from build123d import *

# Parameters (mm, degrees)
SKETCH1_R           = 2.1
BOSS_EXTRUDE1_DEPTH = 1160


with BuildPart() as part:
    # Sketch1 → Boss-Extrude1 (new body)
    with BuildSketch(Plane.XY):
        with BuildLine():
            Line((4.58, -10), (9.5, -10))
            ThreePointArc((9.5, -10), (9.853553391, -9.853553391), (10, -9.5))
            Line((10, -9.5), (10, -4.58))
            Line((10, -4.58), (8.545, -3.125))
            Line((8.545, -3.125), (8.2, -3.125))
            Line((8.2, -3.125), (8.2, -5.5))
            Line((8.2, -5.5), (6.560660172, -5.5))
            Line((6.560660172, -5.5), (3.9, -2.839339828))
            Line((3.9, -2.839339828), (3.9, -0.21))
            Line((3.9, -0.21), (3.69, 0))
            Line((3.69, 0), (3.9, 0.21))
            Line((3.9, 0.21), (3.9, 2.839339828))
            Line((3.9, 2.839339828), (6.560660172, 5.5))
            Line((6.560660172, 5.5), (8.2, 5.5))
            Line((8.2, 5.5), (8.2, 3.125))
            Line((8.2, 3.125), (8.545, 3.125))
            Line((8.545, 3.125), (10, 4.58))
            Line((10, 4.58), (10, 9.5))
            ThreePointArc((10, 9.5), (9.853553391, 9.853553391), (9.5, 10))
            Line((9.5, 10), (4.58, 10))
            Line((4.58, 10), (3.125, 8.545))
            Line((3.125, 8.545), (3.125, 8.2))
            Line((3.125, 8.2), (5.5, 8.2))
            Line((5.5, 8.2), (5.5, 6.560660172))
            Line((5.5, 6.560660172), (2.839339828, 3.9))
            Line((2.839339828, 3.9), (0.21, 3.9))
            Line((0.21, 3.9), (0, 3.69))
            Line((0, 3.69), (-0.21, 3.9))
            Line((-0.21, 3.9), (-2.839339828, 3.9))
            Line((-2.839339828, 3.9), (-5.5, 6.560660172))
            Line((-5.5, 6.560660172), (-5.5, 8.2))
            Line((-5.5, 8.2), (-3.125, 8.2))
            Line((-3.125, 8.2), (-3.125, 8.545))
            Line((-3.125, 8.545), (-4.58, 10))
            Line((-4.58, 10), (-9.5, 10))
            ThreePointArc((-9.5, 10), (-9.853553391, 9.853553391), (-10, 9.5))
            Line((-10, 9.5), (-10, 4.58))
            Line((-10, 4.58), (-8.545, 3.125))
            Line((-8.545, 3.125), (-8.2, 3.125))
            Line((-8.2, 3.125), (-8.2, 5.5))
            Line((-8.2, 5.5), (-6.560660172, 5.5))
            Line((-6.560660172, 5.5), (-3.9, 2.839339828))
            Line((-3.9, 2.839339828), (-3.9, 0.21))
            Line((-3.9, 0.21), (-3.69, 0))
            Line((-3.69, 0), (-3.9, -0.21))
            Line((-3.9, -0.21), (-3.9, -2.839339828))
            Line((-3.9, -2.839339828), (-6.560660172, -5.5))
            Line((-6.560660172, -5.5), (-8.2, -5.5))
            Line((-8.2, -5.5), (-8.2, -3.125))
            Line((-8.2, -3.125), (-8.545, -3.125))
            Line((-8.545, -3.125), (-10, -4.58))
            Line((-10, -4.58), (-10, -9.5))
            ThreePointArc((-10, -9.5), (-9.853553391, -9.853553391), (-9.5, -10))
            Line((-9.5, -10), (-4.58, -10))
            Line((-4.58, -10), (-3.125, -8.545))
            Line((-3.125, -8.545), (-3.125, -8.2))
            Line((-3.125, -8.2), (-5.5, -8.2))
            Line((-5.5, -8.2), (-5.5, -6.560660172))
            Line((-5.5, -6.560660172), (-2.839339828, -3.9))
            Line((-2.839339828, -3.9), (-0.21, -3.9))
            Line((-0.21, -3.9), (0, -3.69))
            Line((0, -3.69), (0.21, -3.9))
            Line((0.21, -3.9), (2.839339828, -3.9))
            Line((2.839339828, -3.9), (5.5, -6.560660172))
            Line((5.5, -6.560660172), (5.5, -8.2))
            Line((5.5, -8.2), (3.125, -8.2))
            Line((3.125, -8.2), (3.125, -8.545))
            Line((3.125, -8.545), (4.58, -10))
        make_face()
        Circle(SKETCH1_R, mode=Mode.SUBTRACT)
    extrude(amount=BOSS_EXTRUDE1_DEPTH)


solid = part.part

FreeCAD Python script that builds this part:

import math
import FreeCAD as App
import Part
import Sketcher

doc = App.newDocument("Part")
body = doc.addObject("PartDesign::Body", "Body")

# Sketch on XY plane
sketch1 = body.newObject("Sketcher::SketchObject", "Sketch")
sketch1.AttachmentSupport = (doc.getObject("XY_Plane"), [""])
sketch1.MapMode = "FlatFace"
sketch1.addGeometry(Part.LineSegment(App.Vector(4.58, -10, 0), App.Vector(9.5, -10, 0)), False)
sketch1.addGeometry(Part.ArcOfCircle(Part.Circle(App.Vector(9.5, -9.5, 0), App.Vector(0, 0, 1), 0.5), math.radians(-90), math.radians(0)), False)
sketch1.addGeometry(Part.LineSegment(App.Vector(10, -9.5, 0), App.Vector(10, -4.58, 0)), False)
sketch1.addGeometry(Part.LineSegment(App.Vector(10, -4.58, 0), App.Vector(8.545, -3.125, 0)), False)
sketch1.addGeometry(Part.LineSegment(App.Vector(8.545, -3.125, 0), App.Vector(8.2, -3.125, 0)), False)
sketch1.addGeometry(Part.LineSegment(App.Vector(8.2, -3.125, 0), App.Vector(8.2, -5.5, 0)), False)
sketch1.addGeometry(Part.LineSegment(App.Vector(8.2, -5.5, 0), App.Vector(6.56066, -5.5, 0)), False)
sketch1.addGeometry(Part.LineSegment(App.Vector(6.56066, -5.5, 0), App.Vector(3.9, -2.83934, 0)), False)
sketch1.addGeometry(Part.LineSegment(App.Vector(3.9, -2.83934, 0), App.Vector(3.9, -0.21, 0)), False)
sketch1.addGeometry(Part.LineSegment(App.Vector(3.9, -0.21, 0), App.Vector(3.69, 0, 0)), False)
sketch1.addGeometry(Part.LineSegment(App.Vector(3.69, 0, 0), App.Vector(3.9, 0.21, 0)), False)
sketch1.addGeometry(Part.LineSegment(App.Vector(3.9, 0.21, 0), App.Vector(3.9, 2.83934, 0)), False)
sketch1.addGeometry(Part.LineSegment(App.Vector(3.9, 2.83934, 0), App.Vector(6.56066, 5.5, 0)), False)
sketch1.addGeometry(Part.LineSegment(App.Vector(6.56066, 5.5, 0), App.Vector(8.2, 5.5, 0)), False)
sketch1.addGeometry(Part.LineSegment(App.Vector(8.2, 5.5, 0), App.Vector(8.2, 3.125, 0)), False)
sketch1.addGeometry(Part.LineSegment(App.Vector(8.2, 3.125, 0), App.Vector(8.545, 3.125, 0)), False)
sketch1.addGeometry(Part.LineSegment(App.Vector(8.545, 3.125, 0), App.Vector(10, 4.58, 0)), False)
sketch1.addGeometry(Part.LineSegment(App.Vector(10, 4.58, 0), App.Vector(10, 9.5, 0)), False)
sketch1.addGeometry(Part.ArcOfCircle(Part.Circle(App.Vector(9.5, 9.5, 0), App.Vector(0, 0, 1), 0.5), math.radians(0), math.radians(90)), False)
sketch1.addGeometry(Part.LineSegment(App.Vector(9.5, 10, 0), App.Vector(4.58, 10, 0)), False)
sketch1.addGeometry(Part.LineSegment(App.Vector(4.58, 10, 0), App.Vector(3.125, 8.545, 0)), False)
sketch1.addGeometry(Part.LineSegment(App.Vector(3.125, 8.545, 0), App.Vector(3.125, 8.2, 0)), False)
sketch1.addGeometry(Part.LineSegment(App.Vector(3.125, 8.2, 0), App.Vector(5.5, 8.2, 0)), False)
sketch1.addGeometry(Part.LineSegment(App.Vector(5.5, 8.2, 0), App.Vector(5.5, 6.56066, 0)), False)
sketch1.addGeometry(Part.LineSegment(App.Vector(5.5, 6.56066, 0), App.Vector(2.83934, 3.9, 0)), False)
sketch1.addGeometry(Part.LineSegment(App.Vector(2.83934, 3.9, 0), App.Vector(0.21, 3.9, 0)), False)
sketch1.addGeometry(Part.LineSegment(App.Vector(0.21, 3.9, 0), App.Vector(0, 3.69, 0)), False)
sketch1.addGeometry(Part.LineSegment(App.Vector(0, 3.69, 0), App.Vector(-0.21, 3.9, 0)), False)
sketch1.addGeometry(Part.LineSegment(App.Vector(-0.21, 3.9, 0), App.Vector(-2.83934, 3.9, 0)), False)
sketch1.addGeometry(Part.LineSegment(App.Vector(-2.83934, 3.9, 0), App.Vector(-5.5, 6.56066, 0)), False)
sketch1.addGeometry(Part.LineSegment(App.Vector(-5.5, 6.56066, 0), App.Vector(-5.5, 8.2, 0)), False)
sketch1.addGeometry(Part.LineSegment(App.Vector(-5.5, 8.2, 0), App.Vector(-3.125, 8.2, 0)), False)
sketch1.addGeometry(Part.LineSegment(App.Vector(-3.125, 8.2, 0), App.Vector(-3.125, 8.545, 0)), False)
sketch1.addGeometry(Part.LineSegment(App.Vector(-3.125, 8.545, 0), App.Vector(-4.58, 10, 0)), False)
sketch1.addGeometry(Part.LineSegment(App.Vector(-4.58, 10, 0), App.Vector(-9.5, 10, 0)), False)
sketch1.addGeometry(Part.ArcOfCircle(Part.Circle(App.Vector(-9.5, 9.5, 0), App.Vector(0, 0, 1), 0.5), math.radians(90), math.radians(180)), False)
sketch1.addGeometry(Part.LineSegment(App.Vector(-10, 9.5, 0), App.Vector(-10, 4.58, 0)), False)
sketch1.addGeometry(Part.LineSegment(App.Vector(-10, 4.58, 0), App.Vector(-8.545, 3.125, 0)), False)
sketch1.addGeometry(Part.LineSegment(App.Vector(-8.545, 3.125, 0), App.Vector(-8.2, 3.125, 0)), False)
sketch1.addGeometry(Part.LineSegment(App.Vector(-8.2, 3.125, 0), App.Vector(-8.2, 5.5, 0)), False)
sketch1.addGeometry(Part.LineSegment(App.Vector(-8.2, 5.5, 0), App.Vector(-6.56066, 5.5, 0)), False)
sketch1.addGeometry(Part.LineSegment(App.Vector(-6.56066, 5.5, 0), App.Vector(-3.9, 2.83934, 0)), False)
sketch1.addGeometry(Part.LineSegment(App.Vector(-3.9, 2.83934, 0), App.Vector(-3.9, 0.21, 0)), False)
sketch1.addGeometry(Part.LineSegment(App.Vector(-3.9, 0.21, 0), App.Vector(-3.69, 0, 0)), False)
sketch1.addGeometry(Part.LineSegment(App.Vector(-3.69, 0, 0), App.Vector(-3.9, -0.21, 0)), False)
sketch1.addGeometry(Part.LineSegment(App.Vector(-3.9, -0.21, 0), App.Vector(-3.9, -2.83934, 0)), False)
sketch1.addGeometry(Part.LineSegment(App.Vector(-3.9, -2.83934, 0), App.Vector(-6.56066, -5.5, 0)), False)
sketch1.addGeometry(Part.LineSegment(App.Vector(-6.56066, -5.5, 0), App.Vector(-8.2, -5.5, 0)), False)
sketch1.addGeometry(Part.LineSegment(App.Vector(-8.2, -5.5, 0), App.Vector(-8.2, -3.125, 0)), False)
sketch1.addGeometry(Part.LineSegment(App.Vector(-8.2, -3.125, 0), App.Vector(-8.545, -3.125, 0)), False)
sketch1.addGeometry(Part.LineSegment(App.Vector(-8.545, -3.125, 0), App.Vector(-10, -4.58, 0)), False)
sketch1.addGeometry(Part.LineSegment(App.Vector(-10, -4.58, 0), App.Vector(-10, -9.5, 0)), False)
sketch1.addGeometry(Part.ArcOfCircle(Part.Circle(App.Vector(-9.5, -9.5, 0), App.Vector(0, 0, 1), 0.5), math.radians(180), math.radians(270)), False)
sketch1.addGeometry(Part.LineSegment(App.Vector(-9.5, -10, 0), App.Vector(-4.58, -10, 0)), False)
sketch1.addGeometry(Part.LineSegment(App.Vector(-4.58, -10, 0), App.Vector(-3.125, -8.545, 0)), False)
sketch1.addGeometry(Part.LineSegment(App.Vector(-3.125, -8.545, 0), App.Vector(-3.125, -8.2, 0)), False)
sketch1.addGeometry(Part.LineSegment(App.Vector(-3.125, -8.2, 0), App.Vector(-5.5, -8.2, 0)), False)
sketch1.addGeometry(Part.LineSegment(App.Vector(-5.5, -8.2, 0), App.Vector(-5.5, -6.56066, 0)), False)
sketch1.addGeometry(Part.LineSegment(App.Vector(-5.5, -6.56066, 0), App.Vector(-2.83934, -3.9, 0)), False)
sketch1.addGeometry(Part.LineSegment(App.Vector(-2.83934, -3.9, 0), App.Vector(-0.21, -3.9, 0)), False)
sketch1.addGeometry(Part.LineSegment(App.Vector(-0.21, -3.9, 0), App.Vector(0, -3.69, 0)), False)
sketch1.addGeometry(Part.LineSegment(App.Vector(0, -3.69, 0), App.Vector(0.21, -3.9, 0)), False)
sketch1.addGeometry(Part.LineSegment(App.Vector(0.21, -3.9, 0), App.Vector(2.83934, -3.9, 0)), False)
sketch1.addGeometry(Part.LineSegment(App.Vector(2.83934, -3.9, 0), App.Vector(5.5, -6.56066, 0)), False)
sketch1.addGeometry(Part.LineSegment(App.Vector(5.5, -6.56066, 0), App.Vector(5.5, -8.2, 0)), False)
sketch1.addGeometry(Part.LineSegment(App.Vector(5.5, -8.2, 0), App.Vector(3.125, -8.2, 0)), False)
sketch1.addGeometry(Part.LineSegment(App.Vector(3.125, -8.2, 0), App.Vector(3.125, -8.545, 0)), False)
sketch1.addGeometry(Part.LineSegment(App.Vector(3.125, -8.545, 0), App.Vector(4.58, -10, 0)), False)
sketch1.addGeometry(Part.Circle(App.Vector(0, 0, 0), App.Vector(0, 0, 1), 2.1), False)
sketch1.addConstraint(Sketcher.Constraint("Tangent", 0, 2, 1, 1))
sketch1.addConstraint(Sketcher.Constraint("Tangent", 1, 2, 2, 1))
sketch1.addConstraint(Sketcher.Constraint("Coincident", 2, 2, 3, 1))
sketch1.addConstraint(Sketcher.Constraint("Coincident", 3, 2, 4, 1))
sketch1.addConstraint(Sketcher.Constraint("Coincident", 4, 2, 5, 1))
sketch1.addConstraint(Sketcher.Constraint("Coincident", 5, 2, 6, 1))
sketch1.addConstraint(Sketcher.Constraint("Coincident", 6, 2, 7, 1))
sketch1.addConstraint(Sketcher.Constraint("Coincident", 7, 2, 8, 1))
sketch1.addConstraint(Sketcher.Constraint("Coincident", 8, 2, 9, 1))
sketch1.addConstraint(Sketcher.Constraint("Coincident", 9, 2, 10, 1))
sketch1.addConstraint(Sketcher.Constraint("Coincident", 10, 2, 11, 1))
sketch1.addConstraint(Sketcher.Constraint("Coincident", 11, 2, 12, 1))
sketch1.addConstraint(Sketcher.Constraint("Coincident", 12, 2, 13, 1))
sketch1.addConstraint(Sketcher.Constraint("Coincident", 13, 2, 14, 1))
sketch1.addConstraint(Sketcher.Constraint("Coincident", 14, 2, 15, 1))
sketch1.addConstraint(Sketcher.Constraint("Coincident", 15, 2, 16, 1))
sketch1.addConstraint(Sketcher.Constraint("Coincident", 16, 2, 17, 1))
sketch1.addConstraint(Sketcher.Constraint("Tangent", 17, 2, 18, 1))
sketch1.addConstraint(Sketcher.Constraint("Tangent", 18, 2, 19, 1))
sketch1.addConstraint(Sketcher.Constraint("Coincident", 19, 2, 20, 1))
sketch1.addConstraint(Sketcher.Constraint("Coincident", 20, 2, 21, 1))
sketch1.addConstraint(Sketcher.Constraint("Coincident", 21, 2, 22, 1))
sketch1.addConstraint(Sketcher.Constraint("Coincident", 22, 2, 23, 1))
sketch1.addConstraint(Sketcher.Constraint("Coincident", 23, 2, 24, 1))
sketch1.addConstraint(Sketcher.Constraint("Coincident", 24, 2, 25, 1))
sketch1.addConstraint(Sketcher.Constraint("Coincident", 25, 2, 26, 1))
sketch1.addConstraint(Sketcher.Constraint("Coincident", 26, 2, 27, 1))
sketch1.addConstraint(Sketcher.Constraint("Coincident", 27, 2, 28, 1))
sketch1.addConstraint(Sketcher.Constraint("Coincident", 28, 2, 29, 1))
sketch1.addConstraint(Sketcher.Constraint("Coincident", 29, 2, 30, 1))
sketch1.addConstraint(Sketcher.Constraint("Coincident", 30, 2, 31, 1))
sketch1.addConstraint(Sketcher.Constraint("Coincident", 31, 2, 32, 1))
sketch1.addConstraint(Sketcher.Constraint("Coincident", 32, 2, 33, 1))
sketch1.addConstraint(Sketcher.Constraint("Coincident", 33, 2, 34, 1))
sketch1.addConstraint(Sketcher.Constraint("Tangent", 34, 2, 35, 1))
sketch1.addConstraint(Sketcher.Constraint("Tangent", 35, 2, 36, 1))
sketch1.addConstraint(Sketcher.Constraint("Coincident", 36, 2, 37, 1))
sketch1.addConstraint(Sketcher.Constraint("Coincident", 37, 2, 38, 1))
sketch1.addConstraint(Sketcher.Constraint("Coincident", 38, 2, 39, 1))
sketch1.addConstraint(Sketcher.Constraint("Coincident", 39, 2, 40, 1))
sketch1.addConstraint(Sketcher.Constraint("Coincident", 40, 2, 41, 1))
sketch1.addConstraint(Sketcher.Constraint("Coincident", 41, 2, 42, 1))
sketch1.addConstraint(Sketcher.Constraint("Coincident", 42, 2, 43, 1))
sketch1.addConstraint(Sketcher.Constraint("Coincident", 43, 2, 44, 1))
sketch1.addConstraint(Sketcher.Constraint("Coincident", 44, 2, 45, 1))
sketch1.addConstraint(Sketcher.Constraint("Coincident", 45, 2, 46, 1))
sketch1.addConstraint(Sketcher.Constraint("Coincident", 46, 2, 47, 1))
sketch1.addConstraint(Sketcher.Constraint("Coincident", 47, 2, 48, 1))
sketch1.addConstraint(Sketcher.Constraint("Coincident", 48, 2, 49, 1))
sketch1.addConstraint(Sketcher.Constraint("Coincident", 49, 2, 50, 1))
sketch1.addConstraint(Sketcher.Constraint("Coincident", 50, 2, 51, 1))
sketch1.addConstraint(Sketcher.Constraint("Tangent", 51, 2, 52, 1))
sketch1.addConstraint(Sketcher.Constraint("Tangent", 52, 2, 53, 1))
sketch1.addConstraint(Sketcher.Constraint("Coincident", 53, 2, 54, 1))
sketch1.addConstraint(Sketcher.Constraint("Coincident", 54, 2, 55, 1))
sketch1.addConstraint(Sketcher.Constraint("Coincident", 55, 2, 56, 1))
sketch1.addConstraint(Sketcher.Constraint("Coincident", 56, 2, 57, 1))
sketch1.addConstraint(Sketcher.Constraint("Coincident", 57, 2, 58, 1))
sketch1.addConstraint(Sketcher.Constraint("Coincident", 58, 2, 59, 1))
sketch1.addConstraint(Sketcher.Constraint("Coincident", 59, 2, 60, 1))
sketch1.addConstraint(Sketcher.Constraint("Coincident", 60, 2, 61, 1))
sketch1.addConstraint(Sketcher.Constraint("Coincident", 61, 2, 62, 1))
sketch1.addConstraint(Sketcher.Constraint("Coincident", 62, 2, 63, 1))
sketch1.addConstraint(Sketcher.Constraint("Coincident", 63, 2, 64, 1))
sketch1.addConstraint(Sketcher.Constraint("Coincident", 64, 2, 65, 1))
sketch1.addConstraint(Sketcher.Constraint("Coincident", 65, 2, 66, 1))
sketch1.addConstraint(Sketcher.Constraint("Coincident", 66, 2, 67, 1))
sketch1.addConstraint(Sketcher.Constraint("Coincident", 67, 2, 0, 1))
sketch1.addConstraint(Sketcher.Constraint("Horizontal", 0))
sketch1.addConstraint(Sketcher.Constraint("Vertical", 2))
sketch1.addConstraint(Sketcher.Constraint("Horizontal", 4))
sketch1.addConstraint(Sketcher.Constraint("Vertical", 5))
sketch1.addConstraint(Sketcher.Constraint("Horizontal", 6))
sketch1.addConstraint(Sketcher.Constraint("Vertical", 8))
sketch1.addConstraint(Sketcher.Constraint("Vertical", 11))
sketch1.addConstraint(Sketcher.Constraint("Horizontal", 13))
sketch1.addConstraint(Sketcher.Constraint("Vertical", 14))
sketch1.addConstraint(Sketcher.Constraint("Horizontal", 15))
sketch1.addConstraint(Sketcher.Constraint("Vertical", 17))
sketch1.addConstraint(Sketcher.Constraint("Horizontal", 19))
sketch1.addConstraint(Sketcher.Constraint("Vertical", 21))
sketch1.addConstraint(Sketcher.Constraint("Horizontal", 22))
sketch1.addConstraint(Sketcher.Constraint("Vertical", 23))
sketch1.addConstraint(Sketcher.Constraint("Horizontal", 25))
sketch1.addConstraint(Sketcher.Constraint("Horizontal", 28))
sketch1.addConstraint(Sketcher.Constraint("Vertical", 30))
sketch1.addConstraint(Sketcher.Constraint("Horizontal", 31))
sketch1.addConstraint(Sketcher.Constraint("Vertical", 32))
sketch1.addConstraint(Sketcher.Constraint("Horizontal", 34))
sketch1.addConstraint(Sketcher.Constraint("Vertical", 36))
sketch1.addConstraint(Sketcher.Constraint("Horizontal", 38))
sketch1.addConstraint(Sketcher.Constraint("Vertical", 39))
sketch1.addConstraint(Sketcher.Constraint("Horizontal", 40))
sketch1.addConstraint(Sketcher.Constraint("Vertical", 42))
sketch1.addConstraint(Sketcher.Constraint("Vertical", 45))
sketch1.addConstraint(Sketcher.Constraint("Horizontal", 47))
sketch1.addConstraint(Sketcher.Constraint("Vertical", 48))
sketch1.addConstraint(Sketcher.Constraint("Horizontal", 49))
sketch1.addConstraint(Sketcher.Constraint("Vertical", 51))
sketch1.addConstraint(Sketcher.Constraint("Horizontal", 53))
sketch1.addConstraint(Sketcher.Constraint("Vertical", 55))
sketch1.addConstraint(Sketcher.Constraint("Horizontal", 56))
sketch1.addConstraint(Sketcher.Constraint("Vertical", 57))
sketch1.addConstraint(Sketcher.Constraint("Horizontal", 59))
sketch1.addConstraint(Sketcher.Constraint("Horizontal", 62))
sketch1.addConstraint(Sketcher.Constraint("Vertical", 64))
sketch1.addConstraint(Sketcher.Constraint("Horizontal", 65))
sketch1.addConstraint(Sketcher.Constraint("Vertical", 66))
sketch1.addConstraint(Sketcher.Constraint("Coincident", 68, 3, -1, 1))
sketch1.addConstraint(Sketcher.Constraint("Equal", 1, 18))
sketch1.addConstraint(Sketcher.Constraint("Equal", 18, 35))
sketch1.addConstraint(Sketcher.Constraint("Equal", 35, 52))
sketch1.addConstraint(Sketcher.Constraint("Symmetric", 1, 3, 35, 3, -1, 1))
sketch1.addConstraint(Sketcher.Constraint("Symmetric", 18, 3, 52, 3, -1, 1))
sketch1.addConstraint(Sketcher.Constraint("Symmetric", 3, 2, 37, 2, -1, 1))
sketch1.addConstraint(Sketcher.Constraint("Symmetric", 5, 2, 39, 2, -1, 1))
sketch1.addConstraint(Sketcher.Constraint("Symmetric", 7, 2, 41, 2, -1, 1))
sketch1.addConstraint(Sketcher.Constraint("Symmetric", 9, 2, 43, 2, -1, 1))
sketch1.addConstraint(Sketcher.Constraint("Symmetric", 10, 2, 44, 2, -1, 1))
sketch1.addConstraint(Sketcher.Constraint("Symmetric", 12, 2, 46, 2, -1, 1))
sketch1.addConstraint(Sketcher.Constraint("Symmetric", 14, 2, 48, 2, -1, 1))
sketch1.addConstraint(Sketcher.Constraint("Symmetric", 20, 2, 54, 2, -1, 1))
sketch1.addConstraint(Sketcher.Constraint("Symmetric", 22, 2, 56, 2, -1, 1))
sketch1.addConstraint(Sketcher.Constraint("Symmetric", 24, 2, 58, 2, -1, 1))
sketch1.addConstraint(Sketcher.Constraint("Symmetric", 26, 2, 60, 2, -1, 1))
sketch1.addConstraint(Sketcher.Constraint("Symmetric", 27, 2, 61, 2, -1, 1))
sketch1.addConstraint(Sketcher.Constraint("Symmetric", 29, 2, 63, 2, -1, 1))
sketch1.addConstraint(Sketcher.Constraint("Symmetric", 31, 2, 65, 2, -1, 1))
sketch1.addConstraint(Sketcher.Constraint("Symmetric", 18, 3, 35, 3, -2))
sketch1.addConstraint(Sketcher.Constraint("Symmetric", 25, 2, 27, 2, -2))
sketch1.addConstraint(Sketcher.Constraint("Symmetric", 23, 2, 29, 2, -2))
sketch1.addConstraint(Sketcher.Constraint("Symmetric", 21, 2, 31, 2, -2))
sketch1.addConstraint(Sketcher.Constraint("Symmetric", 15, 2, 37, 2, -2))
sketch1.addConstraint(Sketcher.Constraint("Symmetric", 13, 2, 39, 2, -2))
sketch1.addConstraint(Sketcher.Constraint("Symmetric", 11, 2, 41, 2, -2))
sketch1.addConstraint(Sketcher.Constraint("PointOnObject", 9, 2, -1))
sketch1.addConstraint(Sketcher.Constraint("PointOnObject", 26, 2, -2))
sketch1.addConstraint(Sketcher.Constraint("Parallel", 3, 7))
sketch1.addConstraint(Sketcher.Constraint("Parallel", 7, 9))
sketch1.addConstraint(Sketcher.Constraint("Perpendicular", 9, 10))
sketch1.addConstraint(Sketcher.Constraint("Parallel", 10, 12))
sketch1.addConstraint(Sketcher.Constraint("Parallel", 12, 16))
sketch1.addConstraint(Sketcher.Constraint("Parallel", 16, 20))
sketch1.addConstraint(Sketcher.Constraint("Parallel", 20, 24))
sketch1.addConstraint(Sketcher.Constraint("Parallel", 24, 26))
sketch1.addConstraint(Sketcher.Constraint("Perpendicular", 26, 27))
sketch1.addConstraint(Sketcher.Constraint("Parallel", 27, 29))
sketch1.addConstraint(Sketcher.Constraint("Parallel", 29, 33))
sketch1.addConstraint(Sketcher.Constraint("Parallel", 33, 37))
sketch1.addConstraint(Sketcher.Constraint("Parallel", 37, 41))
sketch1.addConstraint(Sketcher.Constraint("Parallel", 41, 43))
sketch1.addConstraint(Sketcher.Constraint("Parallel", 44, 46))
sketch1.addConstraint(Sketcher.Constraint("Parallel", 46, 50))
sketch1.addConstraint(Sketcher.Constraint("Parallel", 50, 54))
sketch1.addConstraint(Sketcher.Constraint("Parallel", 54, 58))
sketch1.addConstraint(Sketcher.Constraint("Parallel", 58, 60))
sketch1.addConstraint(Sketcher.Constraint("Parallel", 61, 63))
sketch1.addConstraint(Sketcher.Constraint("Parallel", 63, 67))
sketch1.addConstraint(Sketcher.Constraint("Horizontal", 20, 2, 32, 2))
sketch1.addConstraint(Sketcher.Constraint("Horizontal", 2, 2, 50, 2))
sketch1.addConstraint(Sketcher.Constraint("Horizontal", 54, 2, 66, 2))
sketch1.addConstraint(Sketcher.Constraint("Equal", 53, 2))
sketch1.addConstraint(Sketcher.Constraint("Equal", 65, 5))
sketch1.addConstraint(Sketcher.Constraint("Equal", 62, 8))
sketch1.addConstraint(Sketcher.Constraint("Equal", 49, 21))
sketch1.addConstraint(Sketcher.Constraint("Equal", 47, 23))
sketch1.addConstraint(Sketcher.Constraint("Equal", 16, 20))
sketch1.addConstraint(Sketcher.Constraint("Equal", 12, 24))
sketch1.addConstraint(Sketcher.Constraint("Equal", 10, 26))
sketch1.addConstraint(Sketcher.Constraint("Diameter", 68, 4.2))
sketch1.addConstraint(Sketcher.Constraint("Radius", 1, 0.5))
sketch1.addConstraint(Sketcher.Constraint("DistanceY", 0, 2, -1, 1, 10.0))
sketch1.addConstraint(Sketcher.Constraint("DistanceX", 0, 1, 0, 2, 4.92))
sketch1.addConstraint(Sketcher.Constraint("DistanceX", -1, 1, 4, 2, 8.2))
sketch1.addConstraint(Sketcher.Constraint("DistanceY", 5, 2, -1, 1, 5.5))
sketch1.addConstraint(Sketcher.Constraint("DistanceX", -1, 1, 7, 2, 3.9))
sketch1.addConstraint(Sketcher.Constraint("DistanceX", 4, 2, 4, 1, 0.345))
sketch1.addConstraint(Sketcher.Constraint("DistanceY", 8, 2, -1, 1, 0.21))
sketch1.addConstraint(Sketcher.Constraint("DistanceX", 6, 2, 6, 1, 1.63934))
pad1 = body.newObject("PartDesign::Pad", "Pad")
pad1.Profile = sketch1
pad1.Length = 1160

doc.recompute()
